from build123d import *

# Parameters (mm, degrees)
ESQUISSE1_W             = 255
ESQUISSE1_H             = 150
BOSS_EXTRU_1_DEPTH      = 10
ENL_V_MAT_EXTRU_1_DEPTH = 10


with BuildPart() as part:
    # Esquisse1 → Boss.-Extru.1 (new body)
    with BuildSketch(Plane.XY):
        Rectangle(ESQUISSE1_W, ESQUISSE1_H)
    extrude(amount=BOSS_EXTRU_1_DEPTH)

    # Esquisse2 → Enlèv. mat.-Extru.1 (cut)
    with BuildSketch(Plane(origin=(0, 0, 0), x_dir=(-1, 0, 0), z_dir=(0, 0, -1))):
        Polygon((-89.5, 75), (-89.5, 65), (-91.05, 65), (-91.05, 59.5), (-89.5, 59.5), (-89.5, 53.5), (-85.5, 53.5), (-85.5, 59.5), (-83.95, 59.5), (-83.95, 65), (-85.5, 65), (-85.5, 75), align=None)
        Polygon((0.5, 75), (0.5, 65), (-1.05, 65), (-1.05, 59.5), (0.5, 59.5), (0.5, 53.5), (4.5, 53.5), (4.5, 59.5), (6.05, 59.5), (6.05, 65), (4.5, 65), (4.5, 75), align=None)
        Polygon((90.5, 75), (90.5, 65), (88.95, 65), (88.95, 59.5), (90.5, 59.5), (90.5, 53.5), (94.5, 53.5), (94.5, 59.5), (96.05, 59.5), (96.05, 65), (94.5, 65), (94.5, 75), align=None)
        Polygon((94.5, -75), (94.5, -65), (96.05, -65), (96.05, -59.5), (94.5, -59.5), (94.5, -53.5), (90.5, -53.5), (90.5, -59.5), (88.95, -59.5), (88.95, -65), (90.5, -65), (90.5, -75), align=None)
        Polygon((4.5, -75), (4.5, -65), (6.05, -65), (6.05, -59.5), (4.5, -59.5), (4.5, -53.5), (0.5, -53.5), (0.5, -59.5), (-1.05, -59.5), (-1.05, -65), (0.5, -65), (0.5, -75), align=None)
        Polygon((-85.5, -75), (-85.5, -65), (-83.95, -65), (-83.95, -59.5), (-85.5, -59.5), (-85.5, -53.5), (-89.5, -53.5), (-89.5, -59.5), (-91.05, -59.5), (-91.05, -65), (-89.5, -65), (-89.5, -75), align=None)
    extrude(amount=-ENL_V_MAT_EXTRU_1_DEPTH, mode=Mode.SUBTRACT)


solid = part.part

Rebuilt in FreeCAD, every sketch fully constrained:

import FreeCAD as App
import Part
import Sketcher
Q = App.Units.Quantity


def add_polygon(sketch, points):
    """Adds a closed chain of lines whose ends are joined by coincident constraints."""
    first, n = sketch.GeometryCount, len(points)
    for a, b in zip(points, points[1:] + points[:1]):
        sketch.addGeometry(Part.LineSegment(App.Vector(*a, 0), App.Vector(*b, 0)), False)
    for i in range(n):
        sketch.addConstraint(Sketcher.Constraint("Coincident", first + i, 2, first + (i + 1) % n, 1))

doc = App.newDocument("Part")
params = doc.addObject("Spreadsheet::Sheet", "Params")
for row, (alias, value) in enumerate([
    ("sketch1_width", "255 mm"),
    ("sketch1_height", "150 mm"),
    ("pad1_length", "10 mm"),
    ("sketch2_width", "4 mm"),
    ("sketch2_height", "10 mm"),
    ("sketch2_height2", "6 mm"),
    ("sketch2_height3", "5.5 mm"),
    ("sketch2_width2", "1.55 mm"),
    ("pocket1_length", "10 mm"),
], start=1):
    params.set(f"A{row}", alias)
    params.set(f"B{row}", "=" + value)
    params.setAlias(f"B{row}", alias)

body = doc.addObject("PartDesign::Body", "Body")

sketch1 = body.newObject("Sketcher::SketchObject", "Sketch")
sketch1.AttachmentSupport = (doc.getObject("XY_Plane"), [""])
sketch1.MapMode = "FlatFace"
add_polygon(sketch1, [(-128, 75), (-128, -75), (128, -75), (128, 75)])
sketch1.addConstraint([
    Sketcher.Constraint("Vertical", 0),
    Sketcher.Constraint("Horizontal", 1),
    Sketcher.Constraint("Vertical", 2),
    Sketcher.Constraint("Horizontal", 3),
    Sketcher.Constraint("Symmetric", 0, 2, 2, 2, -1, 1),
    Sketcher.Constraint("DistanceX", 1, 1, 1, 2, Q("255 mm")),
    Sketcher.Constraint("DistanceY", 0, 2, 0, 1, Q("150 mm")),
])
sketch1.setExpression("Constraints[9]", "Params.sketch1_width")
sketch1.setExpression("Constraints[10]", "Params.sketch1_height")
pad1 = body.newObject("PartDesign::Pad", "Pad")
pad1.Profile = sketch1
pad1.setExpression("Length", "Params.pad1_length")

sketch2 = body.newObject("Sketcher::SketchObject", "Sketch001")
sketch2.AttachmentSupport = (doc.getObject("XY_Plane"), [""])
sketch2.MapMode = "FlatFace"
add_polygon(sketch2, [(89.5, 75), (89.5, 65), (91, 65), (91, 59.5), (89.5, 59.5), (89.5, 53.5), (85.5, 53.5), (85.5, 59.5), (84, 59.5), (84, 65), (85.5, 65), (85.5, 75)])
add_polygon(sketch2, [(-0.5, 75), (-0.5, 65), (1.1, 65), (1.1, 59.5), (-0.5, 59.5), (-0.5, 53.5), (-4.5, 53.5), (-4.5, 59.5), (-6, 59.5), (-6, 65), (-4.5, 65), (-4.5, 75)])
add_polygon(sketch2, [(-90.5, 75), (-90.5, 65), (-89, 65), (-89, 59.5), (-90.5, 59.5), (-90.5, 53.5), (-94.5, 53.5), (-94.5, 59.5), (-96, 59.5), (-96, 65), (-94.5, 65), (-94.5, 75)])
add_polygon(sketch2, [(-94.5, -75), (-94.5, -65), (-96, -65), (-96, -59.5), (-94.5, -59.5), (-94.5, -53.5), (-90.5, -53.5), (-90.5, -59.5), (-89, -59.5), (-89, -65), (-90.5, -65), (-90.5, -75)])
add_polygon(sketch2, [(-4.5, -75), (-4.5, -65), (-6, -65), (-6, -59.5), (-4.5, -59.5), (-4.5, -53.5), (-0.5, -53.5), (-0.5, -59.5), (1.1, -59.5), (1.1, -65), (-0.5, -65), (-0.5, -75)])
add_polygon(sketch2, [(85.5, -75), (85.5, -65), (84, -65), (84, -59.5), (85.5, -59.5), (85.5, -53.5), (89.5, -53.5), (89.5, -59.5), (91, -59.5), (91, -65), (89.5, -65), (89.5, -75)])
sketch2.addConstraint([
    Sketcher.Constraint("Vertical", 0),
    Sketcher.Constraint("Horizontal", 1),
    Sketcher.Constraint("Vertical", 2),
    Sketcher.Constraint("Horizontal", 3),
    Sketcher.Constraint("Vertical", 4),
    Sketcher.Constraint("Horizontal", 5),
    Sketcher.Constraint("Vertical", 6),
    Sketcher.Constraint("Horizontal", 7),
    Sketcher.Constraint("Vertical", 8),
    Sketcher.Constraint("Horizontal", 9),
    Sketcher.Constraint("Vertical", 10),
    Sketcher.Constraint("Horizontal", 11),
    Sketcher.Constraint("Vertical", 12),
    Sketcher.Constraint("Horizontal", 13),
    Sketcher.Constraint("Vertical", 14),
    Sketcher.Constraint("Horizontal", 15),
    Sketcher.Constraint("Vertical", 16),
    Sketcher.Constraint("Horizontal", 17),
    Sketcher.Constraint("Vertical", 18),
    Sketcher.Constraint("Horizontal", 19),
    Sketcher.Constraint("Vertical", 20),
    Sketcher.Constraint("Horizontal", 21),
    Sketcher.Constraint("Vertical", 22),
    Sketcher.Constraint("Horizontal", 23),
    Sketcher.Constraint("Vertical", 24),
    Sketcher.Constraint("Horizontal", 25),
    Sketcher.Constraint("Vertical", 26),
    Sketcher.Constraint("Horizontal", 27),
    Sketcher.Constraint("Vertical", 28),
    Sketcher.Constraint("Horizontal", 29),
    Sketcher.Constraint("Vertical", 30),
    Sketcher.Constraint("Horizontal", 31),
    Sketcher.Constraint("Vertical", 32),
    Sketcher.Constraint("Horizontal", 33),
    Sketcher.Constraint("Vertical", 34),
    Sketcher.Constraint("Horizontal", 35),
    Sketcher.Constraint("Vertical", 36),
    Sketcher.Constraint("Horizontal", 37),
    Sketcher.Constraint("Vertical", 38),
    Sketcher.Constraint("Horizontal", 39),
    Sketcher.Constraint("Vertical", 40),
    Sketcher.Constraint("Horizontal", 41),
    Sketcher.Constraint("Vertical", 42),
    Sketcher.Constraint("Horizontal", 43),
    Sketcher.Constraint("Vertical", 44),
    Sketcher.Constraint("Horizontal", 45),
    Sketcher.Constraint("Vertical", 46),
    Sketcher.Constraint("Horizontal", 47),
    Sketcher.Constraint("Vertical", 48),
    Sketcher.Constraint("Horizontal", 49),
    Sketcher.Constraint("Vertical", 50),
    Sketcher.Constraint("Horizontal", 51),
    Sketcher.Constraint("Vertical", 52),
    Sketcher.Constraint("Horizontal", 53),
    Sketcher.Constraint("Vertical", 54),
    Sketcher.Constraint("Horizontal", 55),
    Sketcher.Constraint("Vertical", 56),
    Sketcher.Constraint("Horizontal", 57),
    Sketcher.Constraint("Vertical", 58),
    Sketcher.Constraint("Horizontal", 59),
    Sketcher.Constraint("Vertical", 60),
    Sketcher.Constraint("Horizontal", 61),
    Sketcher.Constraint("Vertical", 62),
    Sketcher.Constraint("Horizontal", 63),
    Sketcher.Constraint("Vertical", 64),
    Sketcher.Constraint("Horizontal", 65),
    Sketcher.Constraint("Vertical", 66),
    Sketcher.Constraint("Horizontal", 67),
    Sketcher.Constraint("Vertical", 68),
    Sketcher.Constraint("Horizontal", 69),
    Sketcher.Constraint("Vertical", 70),
    Sketcher.Constraint("Horizontal", 71),
    Sketcher.Constraint("Symmetric", 33, 2, 36, 2, -1),
    Sketcher.Constraint("Symmetric", 31, 2, 38, 2, -1),
    Sketcher.Constraint("Symmetric", 29, 2, 40, 2, -1),
    Sketcher.Constraint("Symmetric", 27, 2, 42, 2, -1),
    Sketcher.Constraint("Symmetric", 25, 2, 44, 2, -1),
    Sketcher.Constraint("Symmetric", 35, 2, 46, 2, -1),
    Sketcher.Constraint("Symmetric", 21, 2, 48, 2, -1),
    Sketcher.Constraint("Symmetric", 19, 2, 50, 2, -1),
    Sketcher.Constraint("Symmetric", 17, 2, 52, 2, -1),
    Sketcher.Constraint("Symmetric", 15, 2, 54, 2, -1),
    Sketcher.Constraint("Symmetric", 13, 2, 56, 2, -1),
    Sketcher.Constraint("Symmetric", 23, 2, 58, 2, -1),
    Sketcher.Constraint("Symmetric", 9, 2, 60, 2, -1),
    Sketcher.Constraint("Symmetric", 7, 2, 62, 2, -1),
    Sketcher.Constraint("Symmetric", 5, 2, 64, 2, -1),
    Sketcher.Constraint("Symmetric", 3, 2, 66, 2, -1),
    Sketcher.Constraint("Symmetric", 1, 2, 68, 2, -1),
    Sketcher.Constraint("Symmetric", 11, 2, 70, 2, -1),
    Sketcher.Constraint("Horizontal", 3, 2, 6, 2),
    Sketcher.Constraint("Horizontal", 1, 2, 8, 2),
    Sketcher.Constraint("Horizontal", 9, 2, 12, 2),
    Sketcher.Constraint("Horizontal", 7, 2, 14, 2),
    Sketcher.Constraint("Horizontal", 5, 2, 16, 2),
    Sketcher.Constraint("Horizontal", 15, 2, 18, 2),
    Sketcher.Constraint("Horizontal", 13, 2, 20, 2),
    Sketcher.Constraint("Horizontal", 11, 2, 22, 2),
    Sketcher.Constraint("Horizontal", 21, 2, 24, 2),
    Sketcher.Constraint("Horizontal", 19, 2, 26, 2),
    Sketcher.Constraint("Horizontal", 17, 2, 28, 2),
    Sketcher.Constraint("Horizontal", 27, 2, 30, 2),
    Sketcher.Constraint("Horizontal", 25, 2, 32, 2),
    Sketcher.Constraint("Horizontal", 23, 2, 34, 2),
    Sketcher.Constraint("Vertical", 0, 2, 3, 2),
    Sketcher.Constraint("Vertical", 6, 2, 9, 2),
    Sketcher.Constraint("Vertical", 12, 2, 15, 2),
    Sketcher.Constraint("Vertical", 18, 2, 21, 2),
    Sketcher.Constraint("Vertical", 24, 2, 27, 2),
    Sketcher.Constraint("Vertical", 30, 2, 33, 2),
    Sketcher.Constraint("Equal", 3, 7),
    Sketcher.Constraint("Equal", 9, 13),
    Sketcher.Constraint("Equal", 11, 17),
    Sketcher.Constraint("Equal", 15, 19),
    Sketcher.Constraint("Equal", 21, 25),
    Sketcher.Constraint("Equal", 23, 29),
    Sketcher.Constraint("Equal", 27, 31),
    Sketcher.Constraint("DistanceX", 5, 2, 5, 1, Q("4 mm")),
    Sketcher.Constraint("DistanceY", 0, 2, 0, 1, Q("10 mm")),
    Sketcher.Constraint("DistanceY", 4, 2, 4, 1, Q("6 mm")),
    Sketcher.Constraint("DistanceY", 2, 2, 2, 1, Q("5.5 mm")),
    Sketcher.Constraint("DistanceY", -1, 1, 0, 2, Q("65 mm")),
    Sketcher.Constraint("DistanceX", 1, 1, 1, 2, Q("1.55 mm")),
    Sketcher.Constraint("DistanceX", -1, 1, 0, 2, Q("89.5 mm")),
    Sketcher.Constraint("DistanceX", 12, 2, -1, 1, Q("0.5 mm")),
    Sketcher.Constraint("DistanceX", 24, 2, -1, 1, Q("90.5 mm")),
])
sketch2.setExpression("Constraints[189]", "Params.sketch2_width")
sketch2.setExpression("Constraints[190]", "Params.sketch2_height")
sketch2.setExpression("Constraints[191]", "Params.sketch2_height2")
sketch2.setExpression("Constraints[192]", "Params.sketch2_height3")
sketch2.setExpression("Constraints[194]", "Params.sketch2_width2")
pocket1 = body.newObject("PartDesign::Pocket", "Pocket")
pocket1.Profile = sketch2
pocket1.setExpression("Length", "Params.pocket1_length")
pocket1.Reversed = True

doc.recompute()
